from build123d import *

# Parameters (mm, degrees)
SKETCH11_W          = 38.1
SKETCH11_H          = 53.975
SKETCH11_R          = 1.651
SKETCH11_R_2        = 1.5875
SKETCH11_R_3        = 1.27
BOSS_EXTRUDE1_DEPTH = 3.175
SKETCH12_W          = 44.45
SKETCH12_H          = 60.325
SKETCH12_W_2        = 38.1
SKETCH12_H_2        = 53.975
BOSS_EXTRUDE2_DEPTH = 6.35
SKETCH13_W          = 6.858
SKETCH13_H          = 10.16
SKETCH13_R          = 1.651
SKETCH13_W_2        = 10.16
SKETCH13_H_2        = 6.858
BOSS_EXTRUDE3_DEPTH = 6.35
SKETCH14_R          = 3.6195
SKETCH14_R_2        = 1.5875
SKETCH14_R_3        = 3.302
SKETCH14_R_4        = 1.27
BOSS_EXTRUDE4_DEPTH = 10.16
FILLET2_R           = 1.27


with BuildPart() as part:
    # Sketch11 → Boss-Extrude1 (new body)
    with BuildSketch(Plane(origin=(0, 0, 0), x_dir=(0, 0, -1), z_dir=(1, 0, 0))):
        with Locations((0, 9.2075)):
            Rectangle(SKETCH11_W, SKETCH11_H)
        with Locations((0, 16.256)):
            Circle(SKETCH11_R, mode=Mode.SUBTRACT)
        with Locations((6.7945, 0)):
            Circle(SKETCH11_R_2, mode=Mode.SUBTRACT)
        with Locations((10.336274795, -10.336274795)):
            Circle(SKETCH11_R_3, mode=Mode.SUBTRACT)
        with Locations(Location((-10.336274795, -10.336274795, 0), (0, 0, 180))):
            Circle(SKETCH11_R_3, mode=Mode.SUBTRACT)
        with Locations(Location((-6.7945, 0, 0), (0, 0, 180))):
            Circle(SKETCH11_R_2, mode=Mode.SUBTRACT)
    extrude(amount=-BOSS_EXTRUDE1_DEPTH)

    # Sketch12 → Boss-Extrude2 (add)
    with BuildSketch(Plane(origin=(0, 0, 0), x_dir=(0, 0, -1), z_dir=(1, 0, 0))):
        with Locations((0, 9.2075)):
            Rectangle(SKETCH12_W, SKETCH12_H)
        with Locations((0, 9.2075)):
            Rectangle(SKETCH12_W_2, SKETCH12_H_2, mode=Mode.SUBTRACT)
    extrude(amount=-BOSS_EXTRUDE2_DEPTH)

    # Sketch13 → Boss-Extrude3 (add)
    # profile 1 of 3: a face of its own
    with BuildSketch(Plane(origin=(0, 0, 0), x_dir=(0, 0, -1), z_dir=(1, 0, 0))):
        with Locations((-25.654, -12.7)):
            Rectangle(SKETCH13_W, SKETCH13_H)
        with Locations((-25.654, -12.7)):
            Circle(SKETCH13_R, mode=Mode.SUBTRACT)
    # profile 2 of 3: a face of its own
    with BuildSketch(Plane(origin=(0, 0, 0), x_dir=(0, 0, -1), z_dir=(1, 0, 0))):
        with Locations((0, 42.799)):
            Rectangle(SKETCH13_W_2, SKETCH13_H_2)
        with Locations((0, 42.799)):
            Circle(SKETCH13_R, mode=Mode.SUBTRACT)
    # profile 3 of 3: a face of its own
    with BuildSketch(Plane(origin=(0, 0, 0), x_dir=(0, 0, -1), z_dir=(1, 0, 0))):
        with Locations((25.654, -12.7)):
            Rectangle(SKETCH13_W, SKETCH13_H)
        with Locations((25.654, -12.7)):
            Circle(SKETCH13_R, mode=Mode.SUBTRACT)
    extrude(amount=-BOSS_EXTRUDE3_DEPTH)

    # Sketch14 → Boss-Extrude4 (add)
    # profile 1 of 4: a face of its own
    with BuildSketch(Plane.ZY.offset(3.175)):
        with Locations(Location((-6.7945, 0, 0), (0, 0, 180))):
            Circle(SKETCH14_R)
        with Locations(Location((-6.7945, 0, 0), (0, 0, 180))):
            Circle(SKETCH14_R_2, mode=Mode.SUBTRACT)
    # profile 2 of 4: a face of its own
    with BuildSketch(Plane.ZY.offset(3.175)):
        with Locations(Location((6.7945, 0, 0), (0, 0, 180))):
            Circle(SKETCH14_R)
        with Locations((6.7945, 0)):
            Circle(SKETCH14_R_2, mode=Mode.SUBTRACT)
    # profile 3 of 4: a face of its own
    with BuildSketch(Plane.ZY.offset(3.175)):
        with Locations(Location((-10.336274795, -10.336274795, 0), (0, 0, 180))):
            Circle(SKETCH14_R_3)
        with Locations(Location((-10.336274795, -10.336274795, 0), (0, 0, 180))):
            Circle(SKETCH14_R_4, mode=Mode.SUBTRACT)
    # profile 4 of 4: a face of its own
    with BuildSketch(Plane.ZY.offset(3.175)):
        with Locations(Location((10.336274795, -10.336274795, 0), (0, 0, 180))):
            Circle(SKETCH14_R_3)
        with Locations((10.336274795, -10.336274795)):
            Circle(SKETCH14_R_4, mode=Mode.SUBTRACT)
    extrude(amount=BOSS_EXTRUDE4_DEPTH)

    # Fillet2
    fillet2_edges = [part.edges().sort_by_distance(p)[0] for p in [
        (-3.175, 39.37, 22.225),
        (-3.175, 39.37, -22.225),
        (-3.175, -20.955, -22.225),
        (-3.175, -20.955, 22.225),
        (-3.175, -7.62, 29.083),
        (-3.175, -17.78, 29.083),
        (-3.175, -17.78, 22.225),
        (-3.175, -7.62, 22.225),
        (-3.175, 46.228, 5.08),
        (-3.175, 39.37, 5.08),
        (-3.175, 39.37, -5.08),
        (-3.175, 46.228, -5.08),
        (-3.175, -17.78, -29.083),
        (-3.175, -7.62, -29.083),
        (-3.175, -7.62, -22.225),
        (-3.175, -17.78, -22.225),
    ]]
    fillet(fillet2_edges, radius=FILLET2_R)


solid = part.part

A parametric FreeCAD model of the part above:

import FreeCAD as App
import Part
import Sketcher
Q = App.Units.Quantity


def edges_at(feature, points):
    """Names of the edges that pass closest to the given points."""
    edges = feature.Shape.Edges
    near = lambda p: min(range(len(edges)), key=lambda i: edges[i].distToShape(Part.Vertex(*p))[0])
    return sorted({f"Edge{near(p) + 1}" for p in points})


def add_polygon(sketch, points):
    """Adds a closed chain of lines whose ends are joined by coincident constraints."""
    first, n = sketch.GeometryCount, len(points)
    for a, b in zip(points, points[1:] + points[:1]):
        sketch.addGeometry(Part.LineSegment(App.Vector(*a, 0), App.Vector(*b, 0)), False)
    for i in range(n):
        sketch.addConstraint(Sketcher.Constraint("Coincident", first + i, 2, first + (i + 1) % n, 1))

doc = App.newDocument("Part")
params = doc.addObject("Spreadsheet::Sheet", "Params")
for row, (alias, value) in enumerate([
    ("sketch1_diameter", "0.1 in"),
    ("sketch1_diameter2", "0.13 in"),
    ("sketch1_diameter3", "0.125 in"),
    ("sketch1_height", "1.5 in"),
    ("sketch1_width", "2.125 in"),
    ("pad1_length", "0.125 in"),
    ("sketch2_height", "1.5 in"),
    ("sketch2_height2", "1.75 in"),
    ("sketch2_width", "2.375 in"),
    ("sketch2_width2", "2.125 in"),
    ("pad2_length", "0.25 in"),
    ("sketch3_diameter", "0.13 in"),
    ("sketch3_width", "0.4 in"),
    ("sketch3_width2", "0.27 in"),
    ("pad3_length", "0.25 in"),
    ("sketch4_diameter", "0.1 in"),
    ("sketch4_diameter2", "0.26 in"),
    ("sketch4_diameter3", "0.285 in"),
    ("sketch4_diameter4", "0.125 in"),
    ("pad4_length", "0.4 in"),
    ("fillet_radius", "0.05 in"),
], start=1):
    params.set(f"A{row}", alias)
    params.set(f"B{row}", "=" + value)
    params.setAlias(f"B{row}", alias)

body = doc.addObject("PartDesign::Body", "Body")

sketch1 = body.newObject("Sketcher::SketchObject", "Sketch")
sketch1.AttachmentSupport = (doc.getObject("YZ_Plane"), [""])
sketch1.MapMode = "FlatFace"
add_polygon(sketch1, [(36.2, 19.1), (-17.8, 19.1), (-17.8, -19.1), (36.2, -19.1)])
sketch1.addGeometry(Part.Circle(App.Vector(-10.3, 10.3, 0), App.Vector(0, 0, 1), 1.3), False)
sketch1.addGeometry(Part.Circle(App.Vector(0, 6.8, 0), App.Vector(0, 0, 1), 1.6), False)
sketch1.addGeometry(Part.Circle(App.Vector(-10.3, -10.3, 0), App.Vector(0, 0, 1), 1.3), False)
sketch1.addGeometry(Part.Circle(App.Vector(0, -6.8, 0), App.Vector(0, 0, 1), 1.6), False)
sketch1.addGeometry(Part.Circle(App.Vector(16.3, 0, 0), App.Vector(0, 0, 1), 1.7), False)
sketch1.addConstraint(Sketcher.Constraint("Horizontal", 0))
sketch1.addConstraint(Sketcher.Constraint("Vertical", 1))
sketch1.addConstraint(Sketcher.Constraint("Horizontal", 2))
sketch1.addConstraint(Sketcher.Constraint("Vertical", 3))
sketch1.addConstraint(Sketcher.Constraint("Equal", 4, 6))
sketch1.addConstraint(Sketcher.Constraint("Equal", 5, 7))
sketch1.addConstraint(Sketcher.Constraint("Symmetric", 5, 3, 7, 3, -1, 1))
sketch1.addConstraint(Sketcher.Constraint("Symmetric", 4, 3, 6, 3, -1))
sketch1.addConstraint(Sketcher.Constraint("PointOnObject", 5, 3, -2))
sketch1.addConstraint(Sketcher.Constraint("PointOnObject", 8, 3, -1))
sketch1.addConstraint(Sketcher.Constraint("Diameter", 4, Q("0.1 in")))
sketch1.addConstraint(Sketcher.Constraint("Diameter", 8, Q("0.13 in")))
sketch1.addConstraint(Sketcher.Constraint("Diameter", 5, Q("0.125 in")))
sketch1.addConstraint(Sketcher.Constraint("DistanceY", 1, 2, 1, 1, Q("1.5 in")))
sketch1.addConstraint(Sketcher.Constraint("DistanceX", 0, 2, -1, 1, Q("0.7 in")))
sketch1.addConstraint(Sketcher.Constraint("DistanceX", 0, 2, 0, 1, Q("2.125 in")))
sketch1.addConstraint(Sketcher.Constraint("DistanceX", -1, 1, 8, 3, Q("0.64 in")))
sketch1.addConstraint(Sketcher.Constraint("DistanceY", -1, 1, 0, 2, Q("0.75 in")))
sketch1.addConstraint(Sketcher.Constraint("DistanceY", 7, 3, 5, 3, Q("0.535 in")))
sketch1.addConstraint(Sketcher.Constraint("DistanceY", 6, 3, 4, 3, 20.67255))
sketch1.addConstraint(Sketcher.Constraint("DistanceX", 4, 3, -1, 1, 10.336275))
sketch1.setExpression("Constraints[14]", "Params.sketch1_diameter")
sketch1.setExpression("Constraints[15]", "Params.sketch1_diameter2")
sketch1.setExpression("Constraints[16]", "Params.sketch1_diameter3")
sketch1.setExpression("Constraints[17]", "Params.sketch1_height")
sketch1.setExpression("Constraints[19]", "Params.sketch1_width")
pad1 = body.newObject("PartDesign::Pad", "Pad")
pad1.Profile = sketch1
pad1.setExpression("Length", "Params.pad1_length")
pad1.Reversed = True

sketch2 = body.newObject("Sketcher::SketchObject", "Sketch001")
sketch2.AttachmentSupport = (doc.getObject("YZ_Plane"), [""])
sketch2.MapMode = "FlatFace"
add_polygon(sketch2, [(39, 22), (-21, 22), (-21, -22), (39, -22)])
add_polygon(sketch2, [(-18, -19), (-18, 19), (36, 19), (36, -19)])
sketch2.addConstraint(Sketcher.Constraint("Horizontal", 0))
sketch2.addConstraint(Sketcher.Constraint("Vertical", 1))
sketch2.addConstraint(Sketcher.Constraint("Horizontal", 2))
sketch2.addConstraint(Sketcher.Constraint("Vertical", 3))
sketch2.addConstraint(Sketcher.Constraint("Vertical", 4))
sketch2.addConstraint(Sketcher.Constraint("Horizontal", 5))
sketch2.addConstraint(Sketcher.Constraint("Vertical", 6))
sketch2.addConstraint(Sketcher.Constraint("Horizontal", 7))
sketch2.addConstraint(Sketcher.Constraint("DistanceY", 4, 1, 4, 2, Q("1.5 in")))
sketch2.addConstraint(Sketcher.Constraint("DistanceY", 1, 2, 1, 1, Q("1.75 in")))
sketch2.addConstraint(Sketcher.Constraint("DistanceX", 4, 2, -1, 1, Q("0.7 in")))
sketch2.addConstraint(Sketcher.Constraint("DistanceX", 0, 2, 0, 1, Q("2.375 in")))
sketch2.addConstraint(Sketcher.Constraint("DistanceX", 5, 1, 5, 2, Q("2.125 in")))
sketch2.addConstraint(Sketcher.Constraint("DistanceX", -1, 1, 2, 2, Q("1.55 in")))
sketch2.addConstraint(Sketcher.Constraint("DistanceY", -1, 1, 4, 2, Q("0.75 in")))
sketch2.addConstraint(Sketcher.Constraint("DistanceY", -1, 1, 0, 2, Q("0.875 in")))
sketch2.setExpression("Constraints[16]", "Params.sketch2_height")
sketch2.setExpression("Constraints[17]", "Params.sketch2_height2")
sketch2.setExpression("Constraints[19]", "Params.sketch2_width")
sketch2.setExpression("Constraints[20]", "Params.sketch2_width2")
pad2 = body.newObject("PartDesign::Pad", "Pad001")
pad2.Profile = sketch2
pad2.setExpression("Length", "Params.pad2_length")
pad2.Reversed = True

sketch3 = body.newObject("Sketcher::SketchObject", "Sketch002")
sketch3.AttachmentSupport = (doc.getObject("YZ_Plane"), [""])
sketch3.MapMode = "FlatFace"
add_polygon(sketch3, [(-7.6, 29.1), (-17.8, 29.1), (-17.8, 22.2), (-7.6, 22.2)])
sketch3.addGeometry(Part.Circle(App.Vector(-12.7, 25.7, 0), App.Vector(0, 0, 1), 1.7), False)
add_polygon(sketch3, [(46.2, 5.1), (39.4, 5.1), (39.4, -5.1), (46.2, -5.1)])
sketch3.addGeometry(Part.Circle(App.Vector(42.8, 0, 0), App.Vector(0, 0, 1), 1.7), False)
add_polygon(sketch3, [(-7.6, -22.2), (-17.8, -22.2), (-17.8, -29.1), (-7.6, -29.1)])
sketch3.addGeometry(Part.Circle(App.Vector(-12.7, -25.7, 0), App.Vector(0, 0, 1), 1.7), False)
sketch3.addConstraint(Sketcher.Constraint("Horizontal", 0))
sketch3.addConstraint(Sketcher.Constraint("Vertical", 1))
sketch3.addConstraint(Sketcher.Constraint("Horizontal", 2))
sketch3.addConstraint(Sketcher.Constraint("Vertical", 3))
sketch3.addConstraint(Sketcher.Constraint("Horizontal", 5))
sketch3.addConstraint(Sketcher.Constraint("Vertical", 6))
sketch3.addConstraint(Sketcher.Constraint("Horizontal", 7))
sketch3.addConstraint(Sketcher.Constraint("Vertical", 8))
sketch3.addConstraint(Sketcher.Constraint("Horizontal", 10))
sketch3.addConstraint(Sketcher.Constraint("Vertical", 11))
sketch3.addConstraint(Sketcher.Constraint("Horizontal", 12))
sketch3.addConstraint(Sketcher.Constraint("Vertical", 13))
sketch3.addConstraint(Sketcher.Constraint("Equal", 4, 9))
sketch3.addConstraint(Sketcher.Constraint("Equal", 9, 14))
sketch3.addConstraint(Sketcher.Constraint("Symmetric", 4, 3, 14, 3, -1))
sketch3.addConstraint(Sketcher.Constraint("Symmetric", 1, 2, 10, 2, -1))
sketch3.addConstraint(Sketcher.Constraint("Symmetric", 3, 2, 12, 2, -1))
sketch3.addConstraint(Sketcher.Constraint("PointOnObject", 9, 3, -1))
sketch3.addConstraint(Sketcher.Constraint("Equal", 7, 1))
sketch3.addConstraint(Sketcher.Constraint("Equal", 12, 6))
sketch3.addConstraint(Sketcher.Constraint("Diameter", 4, Q("0.13 in")))
sketch3.addConstraint(Sketcher.Constraint("DistanceX", 0, 2, 0, 1, Q("0.4 in")))
sketch3.addConstraint(Sketcher.Constraint("DistanceX", 5, 2, 5, 1, Q("0.27 in")))
sketch3.addConstraint(Sketcher.Constraint("DistanceX", 4, 3, -1, 1, Q("0.5 in")))
sketch3.addConstraint(Sketcher.Constraint("DistanceX", 0, 2, -1, 1, Q("0.7 in")))
sketch3.addConstraint(Sketcher.Constraint("DistanceY", -1, 1, 5, 2, Q("0.2 in")))
sketch3.addConstraint(Sketcher.Constraint("DistanceY", -1, 1, 4, 3, Q("1.01 in")))
sketch3.addConstraint(Sketcher.Constraint("DistanceX", -1, 1, 5, 2, Q("1.55 in")))
sketch3.addConstraint(Sketcher.Constraint("DistanceY", 10, 2, 1, 2, Q("1.75 in")))
sketch3.addConstraint(Sketcher.Constraint("DistanceX", -1, 1, 9, 3, Q("1.685 in")))
sketch3.setExpression("Constraints[32]", "Params.sketch3_diameter")
sketch3.setExpression("Constraints[33]", "Params.sketch3_width")
sketch3.setExpression("Constraints[34]", "Params.sketch3_width2")
pad3 = body.newObject("PartDesign::Pad", "Pad002")
pad3.Profile = sketch3
pad3.setExpression("Length", "Params.pad3_length")
pad3.Reversed = True

sketch4 = body.newObject("Sketcher::SketchObject", "Sketch003")
sketch4.AttachmentSupport = (doc.getObject("YZ_Plane"), [""])
sketch4.MapMode = "FlatFace"
sketch4.AttachmentOffset = App.Placement(App.Vector(0, 0, -0.125 * 25.4), App.Rotation())
sketch4.addGeometry(Part.Circle(App.Vector(0, -6.8, 0), App.Vector(0, 0, 1), 3.6), False)
sketch4.addGeometry(Part.Circle(App.Vector(0, -6.8, 0), App.Vector(0, 0, 1), 1.6), False)
sketch4.addGeometry(Part.Circle(App.Vector(0, 6.8, 0), App.Vector(0, 0, 1), 3.6), False)
sketch4.addGeometry(Part.Circle(App.Vector(0, 6.8, 0), App.Vector(0, 0, 1), 1.6), False)
sketch4.addGeometry(Part.Circle(App.Vector(-10.3, -10.3, 0), App.Vector(0, 0, 1), 3.3), False)
sketch4.addGeometry(Part.Circle(App.Vector(-10.3, -10.3, 0), App.Vector(0, 0, 1), 1.3), False)
sketch4.addGeometry(Part.Circle(App.Vector(-10.3, 10.3, 0), App.Vector(0, 0, 1), 3.3), False)
sketch4.addGeometry(Part.Circle(App.Vector(-10.3, 10.3, 0), App.Vector(0, 0, 1), 1.3), False)
sketch4.addConstraint(Sketcher.Constraint("Coincident", 1, 3, 0, 3))
sketch4.addConstraint(Sketcher.Constraint("Coincident", 3, 3, 2, 3))
sketch4.addConstraint(Sketcher.Constraint("Coincident", 5, 3, 4, 3))
sketch4.addConstraint(Sketcher.Constraint("Coincident", 7, 3, 6, 3))
sketch4.addConstraint(Sketcher.Constraint("Equal", 0, 2))
sketch4.addConstraint(Sketcher.Constraint("Equal", 1, 3))
sketch4.addConstraint(Sketcher.Constraint("Equal", 4, 6))
sketch4.addConstraint(Sketcher.Constraint("Equal", 5, 7))
sketch4.addConstraint(Sketcher.Constraint("Symmetric", 0, 3, 2, 3, -1, 1))
sketch4.addConstraint(Sketcher.Constraint("Symmetric", 4, 3, 6, 3, -1))
sketch4.addConstraint(Sketcher.Constraint("PointOnObject", 0, 3, -2))
sketch4.addConstraint(Sketcher.Constraint("Diameter", 5, Q("0.1 in")))
sketch4.addConstraint(Sketcher.Constraint("Diameter", 4, Q("0.26 in")))
sketch4.addConstraint(Sketcher.Constraint("Diameter", 0, Q("0.285 in")))
sketch4.addConstraint(Sketcher.Constraint("Diameter", 1, Q("0.125 in")))
sketch4.addConstraint(Sketcher.Constraint("DistanceY", 0, 3, 2, 3, Q("0.535 in")))
sketch4.addConstraint(Sketcher.Constraint("DistanceY", 4, 3, 6, 3, 20.67255))
sketch4.addConstraint(Sketcher.Constraint("DistanceX", 4, 3, -1, 1, 10.336275))
sketch4.setExpression("Constraints[11]", "Params.sketch4_diameter")
sketch4.setExpression("Constraints[12]", "Params.sketch4_diameter2")
sketch4.setExpression("Constraints[13]", "Params.sketch4_diameter3")
sketch4.setExpression("Constraints[14]", "Params.sketch4_diameter4")
pad4 = body.newObject("PartDesign::Pad", "Pad003")
pad4.Profile = sketch4
pad4.setExpression("Length", "Params.pad4_length")
pad4.Reversed = True
doc.recompute()

fillet = body.newObject("PartDesign::Fillet", "Fillet")
fillet.Base = (pad4, edges_at(pad4, [
    (-3.175, 39.37, 22.225),
    (-3.175, 39.37, -22.225),
    (-3.175, -20.955, -22.225),
    (-3.175, -20.955, 22.225),
    (-3.175, -7.62, 29.083),
    (-3.175, -17.78, 29.083),
    (-3.175, -17.78, 22.225),
    (-3.175, -7.62, 22.225),
    (-3.175, 46.228, 5.08),
    (-3.175, 39.37, 5.08),
    (-3.175, 39.37, -5.08),
    (-3.175, 46.228, -5.08),
    (-3.175, -17.78, -29.083),
    (-3.175, -7.62, -29.083),
    (-3.175, -7.62, -22.225),
    (-3.175, -17.78, -22.225),
]))
fillet.setExpression("Radius", "Params.fillet_radius")

doc.recompute()
